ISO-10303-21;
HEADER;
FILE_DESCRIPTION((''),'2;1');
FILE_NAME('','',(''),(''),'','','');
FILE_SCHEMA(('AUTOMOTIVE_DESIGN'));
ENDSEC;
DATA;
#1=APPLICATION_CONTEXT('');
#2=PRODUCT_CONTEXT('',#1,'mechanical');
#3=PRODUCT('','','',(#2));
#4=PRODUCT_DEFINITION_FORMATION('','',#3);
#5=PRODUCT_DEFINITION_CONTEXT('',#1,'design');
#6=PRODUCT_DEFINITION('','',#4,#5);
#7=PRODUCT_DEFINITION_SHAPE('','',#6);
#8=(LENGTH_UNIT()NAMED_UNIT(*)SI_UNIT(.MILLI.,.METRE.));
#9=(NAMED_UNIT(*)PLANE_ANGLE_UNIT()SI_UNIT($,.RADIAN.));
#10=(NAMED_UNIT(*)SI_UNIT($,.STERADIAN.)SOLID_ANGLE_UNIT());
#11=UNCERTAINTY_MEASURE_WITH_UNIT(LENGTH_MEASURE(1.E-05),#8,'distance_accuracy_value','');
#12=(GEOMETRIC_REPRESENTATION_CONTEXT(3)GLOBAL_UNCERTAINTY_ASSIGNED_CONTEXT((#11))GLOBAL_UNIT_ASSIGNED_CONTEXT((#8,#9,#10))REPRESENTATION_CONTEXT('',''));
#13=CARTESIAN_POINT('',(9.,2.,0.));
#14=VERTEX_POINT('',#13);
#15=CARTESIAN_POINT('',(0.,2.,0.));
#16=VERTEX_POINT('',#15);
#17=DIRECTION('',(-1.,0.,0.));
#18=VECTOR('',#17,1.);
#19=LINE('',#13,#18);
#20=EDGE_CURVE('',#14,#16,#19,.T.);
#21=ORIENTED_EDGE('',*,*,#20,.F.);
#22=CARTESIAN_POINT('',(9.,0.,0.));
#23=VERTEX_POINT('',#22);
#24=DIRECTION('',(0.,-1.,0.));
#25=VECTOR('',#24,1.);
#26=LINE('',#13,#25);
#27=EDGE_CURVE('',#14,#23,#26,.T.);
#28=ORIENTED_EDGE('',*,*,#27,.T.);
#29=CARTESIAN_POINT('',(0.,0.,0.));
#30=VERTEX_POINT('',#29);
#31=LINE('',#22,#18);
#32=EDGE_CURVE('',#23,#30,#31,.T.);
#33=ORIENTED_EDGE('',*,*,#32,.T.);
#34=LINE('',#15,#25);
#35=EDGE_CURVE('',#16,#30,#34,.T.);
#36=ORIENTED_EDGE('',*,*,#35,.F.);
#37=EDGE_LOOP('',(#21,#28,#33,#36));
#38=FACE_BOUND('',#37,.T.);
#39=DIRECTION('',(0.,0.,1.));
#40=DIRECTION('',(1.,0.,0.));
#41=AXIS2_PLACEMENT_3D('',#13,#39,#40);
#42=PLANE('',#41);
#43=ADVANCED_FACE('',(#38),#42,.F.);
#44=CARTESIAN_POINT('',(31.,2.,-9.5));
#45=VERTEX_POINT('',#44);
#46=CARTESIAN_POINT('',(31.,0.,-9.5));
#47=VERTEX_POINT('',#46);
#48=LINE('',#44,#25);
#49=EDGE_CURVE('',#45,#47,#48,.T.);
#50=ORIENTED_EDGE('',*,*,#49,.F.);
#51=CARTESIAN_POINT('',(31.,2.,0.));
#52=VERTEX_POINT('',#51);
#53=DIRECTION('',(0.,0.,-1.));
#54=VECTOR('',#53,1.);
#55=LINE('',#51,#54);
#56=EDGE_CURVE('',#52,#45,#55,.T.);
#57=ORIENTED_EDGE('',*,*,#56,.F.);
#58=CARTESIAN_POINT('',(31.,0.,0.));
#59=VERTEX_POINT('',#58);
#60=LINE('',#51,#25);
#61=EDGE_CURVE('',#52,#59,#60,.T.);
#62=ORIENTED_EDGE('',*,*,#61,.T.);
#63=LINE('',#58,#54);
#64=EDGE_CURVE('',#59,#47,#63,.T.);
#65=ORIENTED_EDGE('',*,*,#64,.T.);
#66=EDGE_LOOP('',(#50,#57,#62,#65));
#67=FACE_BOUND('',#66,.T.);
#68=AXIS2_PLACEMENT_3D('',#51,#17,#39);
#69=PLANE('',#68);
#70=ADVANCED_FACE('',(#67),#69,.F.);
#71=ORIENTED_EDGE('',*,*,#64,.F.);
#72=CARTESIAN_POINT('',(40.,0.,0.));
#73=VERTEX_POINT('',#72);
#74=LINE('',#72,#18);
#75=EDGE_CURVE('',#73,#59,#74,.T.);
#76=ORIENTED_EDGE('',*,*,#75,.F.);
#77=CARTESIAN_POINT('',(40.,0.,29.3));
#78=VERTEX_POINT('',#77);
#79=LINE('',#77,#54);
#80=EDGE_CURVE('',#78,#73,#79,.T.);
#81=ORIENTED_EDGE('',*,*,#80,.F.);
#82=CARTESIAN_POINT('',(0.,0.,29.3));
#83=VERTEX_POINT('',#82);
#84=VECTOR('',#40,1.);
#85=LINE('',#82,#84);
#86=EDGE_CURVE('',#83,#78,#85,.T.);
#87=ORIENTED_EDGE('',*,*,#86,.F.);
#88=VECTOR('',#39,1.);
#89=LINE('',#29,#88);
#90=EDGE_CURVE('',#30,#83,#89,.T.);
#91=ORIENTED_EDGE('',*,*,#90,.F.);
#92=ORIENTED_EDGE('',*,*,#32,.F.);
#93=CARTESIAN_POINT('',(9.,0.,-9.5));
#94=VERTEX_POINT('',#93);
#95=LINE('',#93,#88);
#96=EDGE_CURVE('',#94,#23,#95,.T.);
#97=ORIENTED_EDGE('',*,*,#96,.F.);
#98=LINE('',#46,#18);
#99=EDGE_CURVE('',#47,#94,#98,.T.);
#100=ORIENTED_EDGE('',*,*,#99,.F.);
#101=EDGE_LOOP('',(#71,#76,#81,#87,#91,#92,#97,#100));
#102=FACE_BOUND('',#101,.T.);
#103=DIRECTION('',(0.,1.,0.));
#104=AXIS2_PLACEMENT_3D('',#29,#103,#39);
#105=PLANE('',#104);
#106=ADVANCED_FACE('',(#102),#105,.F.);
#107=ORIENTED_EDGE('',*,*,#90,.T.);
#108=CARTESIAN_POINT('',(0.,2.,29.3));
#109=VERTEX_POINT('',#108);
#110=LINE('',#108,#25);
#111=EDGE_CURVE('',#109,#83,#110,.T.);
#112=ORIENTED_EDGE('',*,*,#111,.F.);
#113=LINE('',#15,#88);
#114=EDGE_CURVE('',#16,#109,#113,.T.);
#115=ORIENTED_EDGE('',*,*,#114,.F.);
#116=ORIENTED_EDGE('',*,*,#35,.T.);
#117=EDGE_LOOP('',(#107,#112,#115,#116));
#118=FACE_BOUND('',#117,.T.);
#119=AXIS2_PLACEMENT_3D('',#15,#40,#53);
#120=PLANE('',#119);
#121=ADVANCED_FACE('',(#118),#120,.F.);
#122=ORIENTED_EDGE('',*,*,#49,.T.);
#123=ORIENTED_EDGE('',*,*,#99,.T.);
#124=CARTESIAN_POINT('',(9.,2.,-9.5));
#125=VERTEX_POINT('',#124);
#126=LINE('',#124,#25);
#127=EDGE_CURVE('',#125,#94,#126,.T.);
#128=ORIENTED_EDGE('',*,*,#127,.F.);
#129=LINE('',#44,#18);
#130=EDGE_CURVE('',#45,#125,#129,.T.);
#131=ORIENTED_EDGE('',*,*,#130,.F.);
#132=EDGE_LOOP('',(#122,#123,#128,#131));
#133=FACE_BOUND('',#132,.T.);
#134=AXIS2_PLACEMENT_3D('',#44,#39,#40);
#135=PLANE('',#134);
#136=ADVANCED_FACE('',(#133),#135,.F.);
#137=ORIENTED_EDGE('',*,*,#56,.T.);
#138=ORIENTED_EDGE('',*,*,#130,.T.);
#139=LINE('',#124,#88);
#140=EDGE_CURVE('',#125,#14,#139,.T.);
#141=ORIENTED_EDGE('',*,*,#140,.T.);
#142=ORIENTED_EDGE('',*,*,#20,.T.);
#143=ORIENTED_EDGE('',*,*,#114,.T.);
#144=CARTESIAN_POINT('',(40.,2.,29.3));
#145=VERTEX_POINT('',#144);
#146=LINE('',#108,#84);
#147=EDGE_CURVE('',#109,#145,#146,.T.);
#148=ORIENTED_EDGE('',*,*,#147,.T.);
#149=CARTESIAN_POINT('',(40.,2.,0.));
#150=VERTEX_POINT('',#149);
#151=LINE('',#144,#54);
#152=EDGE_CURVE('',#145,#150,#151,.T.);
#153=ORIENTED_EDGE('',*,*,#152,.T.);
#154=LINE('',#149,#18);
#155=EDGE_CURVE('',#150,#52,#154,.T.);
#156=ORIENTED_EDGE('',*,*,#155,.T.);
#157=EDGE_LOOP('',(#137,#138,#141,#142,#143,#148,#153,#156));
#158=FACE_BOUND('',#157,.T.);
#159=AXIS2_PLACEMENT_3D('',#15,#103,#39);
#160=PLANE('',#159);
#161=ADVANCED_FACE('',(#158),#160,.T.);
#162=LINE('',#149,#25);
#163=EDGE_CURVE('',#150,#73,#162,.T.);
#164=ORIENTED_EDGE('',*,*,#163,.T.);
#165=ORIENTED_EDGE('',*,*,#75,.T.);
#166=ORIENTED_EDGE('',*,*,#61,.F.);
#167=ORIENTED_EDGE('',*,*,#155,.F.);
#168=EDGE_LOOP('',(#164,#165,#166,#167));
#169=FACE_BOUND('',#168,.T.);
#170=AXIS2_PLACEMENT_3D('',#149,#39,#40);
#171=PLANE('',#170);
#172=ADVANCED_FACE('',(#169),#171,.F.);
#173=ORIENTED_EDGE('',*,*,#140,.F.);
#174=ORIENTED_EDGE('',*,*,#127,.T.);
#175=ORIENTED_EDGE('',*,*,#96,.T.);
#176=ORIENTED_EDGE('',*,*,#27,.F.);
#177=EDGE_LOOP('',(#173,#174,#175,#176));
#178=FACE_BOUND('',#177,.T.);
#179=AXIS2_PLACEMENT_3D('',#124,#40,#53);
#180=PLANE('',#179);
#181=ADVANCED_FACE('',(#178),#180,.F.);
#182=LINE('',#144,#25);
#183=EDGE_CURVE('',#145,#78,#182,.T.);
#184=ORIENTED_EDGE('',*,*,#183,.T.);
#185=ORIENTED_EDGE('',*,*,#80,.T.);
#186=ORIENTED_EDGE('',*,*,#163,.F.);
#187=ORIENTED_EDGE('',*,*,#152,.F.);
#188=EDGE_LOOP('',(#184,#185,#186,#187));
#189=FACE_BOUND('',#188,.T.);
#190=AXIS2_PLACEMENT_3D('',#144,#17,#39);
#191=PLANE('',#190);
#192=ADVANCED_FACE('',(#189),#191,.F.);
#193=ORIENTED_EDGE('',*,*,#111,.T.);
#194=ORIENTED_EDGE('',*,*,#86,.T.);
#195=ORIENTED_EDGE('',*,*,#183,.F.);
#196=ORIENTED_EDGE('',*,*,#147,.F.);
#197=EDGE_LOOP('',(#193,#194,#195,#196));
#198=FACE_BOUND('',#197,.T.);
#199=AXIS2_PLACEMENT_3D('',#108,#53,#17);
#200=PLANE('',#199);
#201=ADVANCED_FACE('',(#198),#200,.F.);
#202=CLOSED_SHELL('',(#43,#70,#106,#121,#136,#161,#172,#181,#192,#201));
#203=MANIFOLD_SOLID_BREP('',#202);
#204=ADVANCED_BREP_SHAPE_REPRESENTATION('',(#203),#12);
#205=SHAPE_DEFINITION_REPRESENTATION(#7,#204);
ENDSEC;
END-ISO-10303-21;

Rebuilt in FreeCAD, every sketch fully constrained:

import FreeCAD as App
import Part
import Sketcher

V = App.Vector

doc = App.newDocument("Part")
body = doc.addObject("PartDesign::Body", "Body")

# Sketch on XZ plane
sketch1 = doc.addObject("Sketcher::SketchObject", "Sketch")
body.addObject(sketch1)
sketch1.AttachmentSupport = (doc.XZ_Plane, [""])
sketch1.MapMode = "FlatFace"
sketch1.addGeometry(Part.LineSegment(V(0, 0, 0), V(0, 29, 0)), False)
sketch1.addGeometry(Part.LineSegment(V(0, 29, 0), V(40, 29, 0)), False)
sketch1.addGeometry(Part.LineSegment(V(40, 29, 0), V(40, 0, 0)), False)
sketch1.addGeometry(Part.LineSegment(V(40, 0, 0), V(31, 0, 0)), False)
sketch1.addGeometry(Part.LineSegment(V(31, 0, 0), V(31, -10, 0)), False)
sketch1.addGeometry(Part.LineSegment(V(31, -10, 0), V(9, -10, 0)), False)
sketch1.addGeometry(Part.LineSegment(V(9, -10, 0), V(9, 0, 0)), False)
sketch1.addGeometry(Part.LineSegment(V(9, 0, 0), V(0, 0, 0)), False)
sketch1.addConstraint(Sketcher.Constraint("Coincident", 0, 2, 1, 1))
sketch1.addConstraint(Sketcher.Constraint("Coincident", 1, 2, 2, 1))
sketch1.addConstraint(Sketcher.Constraint("Coincident", 2, 2, 3, 1))
sketch1.addConstraint(Sketcher.Constraint("Coincident", 3, 2, 4, 1))
sketch1.addConstraint(Sketcher.Constraint("Coincident", 4, 2, 5, 1))
sketch1.addConstraint(Sketcher.Constraint("Coincident", 5, 2, 6, 1))
sketch1.addConstraint(Sketcher.Constraint("Coincident", 6, 2, 7, 1))
sketch1.addConstraint(Sketcher.Constraint("Coincident", 7, 2, 0, 1))
sketch1.addConstraint(Sketcher.Constraint("Vertical", 0))
sketch1.addConstraint(Sketcher.Constraint("Horizontal", 1))
sketch1.addConstraint(Sketcher.Constraint("Vertical", 2))
sketch1.addConstraint(Sketcher.Constraint("Horizontal", 3))
sketch1.addConstraint(Sketcher.Constraint("Vertical", 4))
sketch1.addConstraint(Sketcher.Constraint("Horizontal", 5))
sketch1.addConstraint(Sketcher.Constraint("Vertical", 6))
sketch1.addConstraint(Sketcher.Constraint("Horizontal", 7))
sketch1.addConstraint(Sketcher.Constraint("Coincident", 7, 2, -1, 1))
sketch1.addConstraint(Sketcher.Constraint("PointOnObject", 2, 2, -1))
sketch1.addConstraint(Sketcher.Constraint("Equal", 3, 7))
sketch1.addConstraint(Sketcher.Constraint("DistanceX", 1, 1, 1, 2, 40.0))
sketch1.addConstraint(Sketcher.Constraint("DistanceX", 3, 2, 3, 1, 9.0))
sketch1.addConstraint(Sketcher.Constraint("DistanceY", 0, 1, 0, 2, 29.3))
sketch1.addConstraint(Sketcher.Constraint("DistanceY", 4, 2, 4, 1, 9.5))
pad1 = doc.addObject("PartDesign::Pad", "Pad")
body.addObject(pad1)
pad1.Profile = sketch1
pad1.Length = 2
pad1.Reversed = True

doc.recompute()
